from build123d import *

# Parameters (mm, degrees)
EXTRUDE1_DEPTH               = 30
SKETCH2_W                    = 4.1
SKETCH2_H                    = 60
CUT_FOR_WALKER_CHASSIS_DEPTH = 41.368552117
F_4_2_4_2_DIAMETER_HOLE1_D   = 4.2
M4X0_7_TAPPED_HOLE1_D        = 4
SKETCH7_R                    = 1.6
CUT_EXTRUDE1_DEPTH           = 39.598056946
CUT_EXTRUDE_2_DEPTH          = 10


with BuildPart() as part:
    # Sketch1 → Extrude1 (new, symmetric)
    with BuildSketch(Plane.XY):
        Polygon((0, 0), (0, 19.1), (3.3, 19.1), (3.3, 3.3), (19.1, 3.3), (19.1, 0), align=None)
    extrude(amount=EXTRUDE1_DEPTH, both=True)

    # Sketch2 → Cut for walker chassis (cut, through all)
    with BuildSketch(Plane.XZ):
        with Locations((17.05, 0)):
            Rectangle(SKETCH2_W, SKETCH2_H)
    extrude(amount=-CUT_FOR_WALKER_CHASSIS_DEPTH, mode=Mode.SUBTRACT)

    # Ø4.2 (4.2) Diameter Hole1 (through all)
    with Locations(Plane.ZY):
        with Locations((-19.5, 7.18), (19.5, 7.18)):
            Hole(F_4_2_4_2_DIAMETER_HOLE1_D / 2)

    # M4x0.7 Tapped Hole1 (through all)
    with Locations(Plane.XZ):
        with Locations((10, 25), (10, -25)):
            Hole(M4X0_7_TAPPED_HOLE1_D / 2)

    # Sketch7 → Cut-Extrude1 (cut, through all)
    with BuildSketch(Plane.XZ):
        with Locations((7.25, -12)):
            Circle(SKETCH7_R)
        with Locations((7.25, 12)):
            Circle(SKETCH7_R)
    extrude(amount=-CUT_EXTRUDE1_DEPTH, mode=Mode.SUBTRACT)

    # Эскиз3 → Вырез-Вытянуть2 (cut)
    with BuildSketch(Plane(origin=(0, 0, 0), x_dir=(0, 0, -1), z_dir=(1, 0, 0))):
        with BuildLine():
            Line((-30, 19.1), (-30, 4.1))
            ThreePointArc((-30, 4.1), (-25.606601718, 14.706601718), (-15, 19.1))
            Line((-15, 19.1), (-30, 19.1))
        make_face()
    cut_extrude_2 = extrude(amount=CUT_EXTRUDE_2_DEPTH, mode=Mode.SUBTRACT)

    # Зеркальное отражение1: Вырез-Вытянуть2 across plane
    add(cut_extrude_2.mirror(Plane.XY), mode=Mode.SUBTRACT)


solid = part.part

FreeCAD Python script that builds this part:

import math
import FreeCAD as App
import Part
import Sketcher

doc = App.newDocument("Part")
body = doc.addObject("PartDesign::Body", "Body")

# Sketch on XY plane
sketch1 = body.newObject("Sketcher::SketchObject", "Sketch")
sketch1.AttachmentSupport = (doc.getObject("XY_Plane"), [""])
sketch1.MapMode = "FlatFace"
sketch1.addGeometry(Part.LineSegment(App.Vector(0, 19.1, 0), App.Vector(0, 0, 0)), False)
sketch1.addGeometry(Part.LineSegment(App.Vector(0, 0, 0), App.Vector(19.1, 0, 0)), False)
sketch1.addGeometry(Part.LineSegment(App.Vector(19.1, 0, 0), App.Vector(19.1, 3.3, 0)), False)
sketch1.addGeometry(Part.LineSegment(App.Vector(19.1, 3.3, 0), App.Vector(3.3, 3.3, 0)), False)
sketch1.addGeometry(Part.LineSegment(App.Vector(3.3, 3.3, 0), App.Vector(3.3, 19.1, 0)), False)
sketch1.addGeometry(Part.LineSegment(App.Vector(3.3, 19.1, 0), App.Vector(0, 19.1, 0)), False)
sketch1.addConstraint(Sketcher.Constraint("Coincident", 0, 2, 1, 1))
sketch1.addConstraint(Sketcher.Constraint("Coincident", 1, 2, 2, 1))
sketch1.addConstraint(Sketcher.Constraint("Coincident", 2, 2, 3, 1))
sketch1.addConstraint(Sketcher.Constraint("Coincident", 3, 2, 4, 1))
sketch1.addConstraint(Sketcher.Constraint("Coincident", 4, 2, 5, 1))
sketch1.addConstraint(Sketcher.Constraint("Coincident", 5, 2, 0, 1))
sketch1.addConstraint(Sketcher.Constraint("Vertical", 0))
sketch1.addConstraint(Sketcher.Constraint("Horizontal", 1))
sketch1.addConstraint(Sketcher.Constraint("Vertical", 2))
sketch1.addConstraint(Sketcher.Constraint("Horizontal", 3))
sketch1.addConstraint(Sketcher.Constraint("Vertical", 4))
sketch1.addConstraint(Sketcher.Constraint("Horizontal", 5))
sketch1.addConstraint(Sketcher.Constraint("Coincident", 0, 2, -1, 1))
sketch1.addConstraint(Sketcher.Constraint("Equal", 1, 0))
sketch1.addConstraint(Sketcher.Constraint("Equal", 5, 2))
sketch1.addConstraint(Sketcher.Constraint("DistanceX", 1, 1, 1, 2, 19.1))
sketch1.addConstraint(Sketcher.Constraint("DistanceX", 3, 2, 3, 1, 15.8))
pad1 = body.newObject("PartDesign::Pad", "Pad")
pad1.Profile = sketch1
pad1.Length = 60
pad1.Midplane = True

# Sketch on XZ plane
sketch2 = body.newObject("Sketcher::SketchObject", "Sketch001")
sketch2.AttachmentSupport = (doc.getObject("XZ_Plane"), [""])
sketch2.MapMode = "FlatFace"
sketch2.addGeometry(Part.LineSegment(App.Vector(15, 30, 0), App.Vector(15, -30, 0)), False)
sketch2.addGeometry(Part.LineSegment(App.Vector(15, -30, 0), App.Vector(19.1, -30, 0)), False)
sketch2.addGeometry(Part.LineSegment(App.Vector(19.1, -30, 0), App.Vector(19.1, 30, 0)), False)
sketch2.addGeometry(Part.LineSegment(App.Vector(19.1, 30, 0), App.Vector(15, 30, 0)), False)
sketch2.addConstraint(Sketcher.Constraint("Coincident", 0, 2, 1, 1))
sketch2.addConstraint(Sketcher.Constraint("Coincident", 1, 2, 2, 1))
sketch2.addConstraint(Sketcher.Constraint("Coincident", 2, 2, 3, 1))
sketch2.addConstraint(Sketcher.Constraint("Coincident", 3, 2, 0, 1))
sketch2.addConstraint(Sketcher.Constraint("Vertical", 0))
sketch2.addConstraint(Sketcher.Constraint("Horizontal", 1))
sketch2.addConstraint(Sketcher.Constraint("Vertical", 2))
sketch2.addConstraint(Sketcher.Constraint("Horizontal", 3))
sketch2.addConstraint(Sketcher.Constraint("DistanceY", 0, 2, 0, 1, 60.0))
sketch2.addConstraint(Sketcher.Constraint("DistanceX", 1, 1, 1, 2, 4.1))
sketch2.addConstraint(Sketcher.Constraint("DistanceX", -1, 1, 0, 2, 15.0))
sketch2.addConstraint(Sketcher.Constraint("DistanceY", 0, 2, -1, 1, 30.0))
pocket1 = body.newObject("PartDesign::Pocket", "Pocket")
pocket1.Profile = sketch2
pocket1.Type = "ThroughAll"

# Sketch on YZ plane
sketch3 = body.newObject("Sketcher::SketchObject", "Sketch002")
sketch3.AttachmentSupport = (doc.getObject("YZ_Plane"), [""])
sketch3.MapMode = "FlatFace"
sketch3.addGeometry(Part.Circle(App.Vector(7.18, -19.5, 0), App.Vector(0, 0, 1), 2.1), False)
sketch3.addGeometry(Part.Circle(App.Vector(7.18, 19.5, 0), App.Vector(0, 0, 1), 2.1), False)
sketch3.addConstraint(Sketcher.Constraint("Equal", 0, 1))
sketch3.addConstraint(Sketcher.Constraint("Symmetric", 0, 3, 1, 3, -1))
sketch3.addConstraint(Sketcher.Constraint("Diameter", 0, 4.2))
sketch3.addConstraint(Sketcher.Constraint("DistanceY", 0, 3, 1, 3, 39.0))
sketch3.addConstraint(Sketcher.Constraint("DistanceX", -1, 1, 0, 3, 7.18))
doc.recompute()
hole = body.newObject("PartDesign::Hole", "Hole")
hole.Profile = sketch3
hole.ThreadType = "None"
hole.Diameter = 4.2
hole.DepthType = "ThroughAll"
hole.Reversed = True

# Sketch on XZ plane
sketch4 = body.newObject("Sketcher::SketchObject", "Sketch003")
sketch4.AttachmentSupport = (doc.getObject("XZ_Plane"), [""])
sketch4.MapMode = "FlatFace"
sketch4.addGeometry(Part.Circle(App.Vector(10, 25, 0), App.Vector(0, 0, 1), 2), False)
sketch4.addGeometry(Part.Circle(App.Vector(10, -25, 0), App.Vector(0, 0, 1), 2), False)
sketch4.addConstraint(Sketcher.Constraint("Equal", 0, 1))
sketch4.addConstraint(Sketcher.Constraint("Symmetric", 0, 3, 1, 3, -1))
sketch4.addConstraint(Sketcher.Constraint("Diameter", 0, 4.0))
sketch4.addConstraint(Sketcher.Constraint("DistanceX", -1, 1, 0, 3, 10.0))
sketch4.addConstraint(Sketcher.Constraint("DistanceY", -1, 1, 0, 3, 25.0))
doc.recompute()
hole2 = body.newObject("PartDesign::Hole", "Hole001")
hole2.Profile = sketch4
hole2.ThreadType = "None"
hole2.Diameter = 4
hole2.DepthType = "ThroughAll"

# Sketch on XZ plane
sketch5 = body.newObject("Sketcher::SketchObject", "Sketch004")
sketch5.AttachmentSupport = (doc.getObject("XZ_Plane"), [""])
sketch5.MapMode = "FlatFace"
sketch5.addGeometry(Part.Circle(App.Vector(7.25, -12, 0), App.Vector(0, 0, 1), 1.6), False)
sketch5.addGeometry(Part.Circle(App.Vector(7.25, 12, 0), App.Vector(0, 0, 1), 1.6), False)
sketch5.addConstraint(Sketcher.Constraint("Equal", 0, 1))
sketch5.addConstraint(Sketcher.Constraint("Symmetric", 0, 3, 1, 3, -1))
sketch5.addConstraint(Sketcher.Constraint("Diameter", 0, 3.2))
sketch5.addConstraint(Sketcher.Constraint("DistanceY", 0, 3, -1, 1, 12.0))
sketch5.addConstraint(Sketcher.Constraint("DistanceX", -1, 1, 0, 3, 7.25))
pocket2 = body.newObject("PartDesign::Pocket", "Pocket001")
pocket2.Profile = sketch5
pocket2.Type = "ThroughAll"

# Sketch on YZ plane
sketch6 = body.newObject("Sketcher::SketchObject", "Sketch005")
sketch6.AttachmentSupport = (doc.getObject("YZ_Plane"), [""])
sketch6.MapMode = "FlatFace"
sketch6.addGeometry(Part.LineSegment(App.Vector(19.1, 30, 0), App.Vector(4.1, 30, 0)), False)
sketch6.addGeometry(Part.ArcOfCircle(Part.Circle(App.Vector(4.1, 15, 0), App.Vector(0, 0, 1), 15), math.radians(0), math.radians(90)), False)
sketch6.addGeometry(Part.LineSegment(App.Vector(19.1, 15, 0), App.Vector(19.1, 30, 0)), False)
sketch6.addConstraint(Sketcher.Constraint("Tangent", 0, 2, 1, 2))
sketch6.addConstraint(Sketcher.Constraint("Tangent", 1, 1, 2, 1))
sketch6.addConstraint(Sketcher.Constraint("Coincident", 2, 2, 0, 1))
sketch6.addConstraint(Sketcher.Constraint("Horizontal", 0))
sketch6.addConstraint(Sketcher.Constraint("Vertical", 2))
sketch6.addConstraint(Sketcher.Constraint("Radius", 1, 15.0))
sketch6.addConstraint(Sketcher.Constraint("DistanceY", -1, 1, 1, 3, 15.0))
sketch6.addConstraint(Sketcher.Constraint("DistanceX", -1, 1, 1, 3, 4.1))
pocket3 = body.newObject("PartDesign::Pocket", "Pocket002")
pocket3.Profile = sketch6
pocket3.Length = 10
pocket3.Reversed = True
doc.recompute()

mirrored = body.newObject("PartDesign::Mirrored", "Mirrored")
mirrored.Originals = [pocket3]
mirrored.MirrorPlane = (doc.getObject("XY_Plane"), [""])
body.Tip = mirrored

doc.recompute()
